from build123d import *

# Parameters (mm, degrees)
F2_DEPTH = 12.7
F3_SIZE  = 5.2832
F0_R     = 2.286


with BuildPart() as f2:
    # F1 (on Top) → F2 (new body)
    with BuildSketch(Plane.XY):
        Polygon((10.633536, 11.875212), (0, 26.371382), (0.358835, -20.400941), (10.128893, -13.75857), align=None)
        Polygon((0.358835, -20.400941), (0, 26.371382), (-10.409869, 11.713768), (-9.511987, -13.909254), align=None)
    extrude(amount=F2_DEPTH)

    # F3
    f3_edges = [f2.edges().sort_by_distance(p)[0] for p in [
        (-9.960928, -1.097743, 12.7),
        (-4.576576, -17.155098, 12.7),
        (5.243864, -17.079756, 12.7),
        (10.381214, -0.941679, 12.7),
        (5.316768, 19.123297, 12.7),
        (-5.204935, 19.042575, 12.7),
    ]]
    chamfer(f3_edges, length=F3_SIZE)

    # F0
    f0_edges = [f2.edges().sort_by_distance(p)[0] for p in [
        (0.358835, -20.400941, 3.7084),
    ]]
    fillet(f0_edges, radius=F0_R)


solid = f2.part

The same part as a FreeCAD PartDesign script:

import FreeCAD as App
import Part
import Sketcher
Q = App.Units.Quantity


def edges_at(feature, points):
    """Names of the edges that pass closest to the given points."""
    edges = feature.Shape.Edges
    near = lambda p: min(range(len(edges)), key=lambda i: edges[i].distToShape(Part.Vertex(*p))[0])
    return sorted({f"Edge{near(p) + 1}" for p in points})

doc = App.newDocument("Part")
body = doc.addObject("PartDesign::Body", "Body")

sketch1 = body.newObject("Sketcher::SketchObject", "Sketch")
sketch1.AttachmentSupport = (doc.getObject("XY_Plane"), [""])
sketch1.MapMode = "FlatFace"
sketch1.addGeometry([
    Part.LineSegment(App.Vector(10.633536, 11.875212, 0), App.Vector(0, 26.371382, 0)),
    Part.LineSegment(App.Vector(0, 26.371382, 0), App.Vector(-10.409869, 11.713768, 0)),
    Part.LineSegment(App.Vector(-10.409869, 11.713768, 0), App.Vector(-9.511987, -13.909254, 0)),
    Part.LineSegment(App.Vector(-9.511987, -13.909254, 0), App.Vector(0.358835, -20.400941, 0)),
    Part.LineSegment(App.Vector(0.358835, -20.400941, 0), App.Vector(10.128893, -13.75857, 0)),
    Part.LineSegment(App.Vector(10.128893, -13.75857, 0), App.Vector(10.633536, 11.875212, 0)),
], False)
sketch1.addConstraint([
    Sketcher.Constraint("Coincident", 0, 2, 1, 1),
    Sketcher.Constraint("Coincident", 1, 2, 2, 1),
    Sketcher.Constraint("Coincident", 2, 2, 3, 1),
    Sketcher.Constraint("Coincident", 3, 2, 4, 1),
    Sketcher.Constraint("Coincident", 4, 2, 5, 1),
    Sketcher.Constraint("Coincident", 5, 2, 0, 1),
    Sketcher.Constraint("PointOnObject", 0, 2, -2),
    Sketcher.Constraint("Equal", 0, 1),
    Sketcher.Constraint("Equal", 3, 4),
    Sketcher.Constraint("Equal", 2, 5),
    Sketcher.Constraint("DistanceX", 3, 2, 5, 2, 10.274701),
    Sketcher.Constraint("Distance", 0, 17.978071),
    Sketcher.Constraint("Distance", 2, 25.638749),
    Sketcher.Constraint("Distance", 3, 11.814192),
    Sketcher.Constraint("DistanceX", 1, 2, -1, 1, 10.409869),
    Sketcher.Constraint("DistanceY", 3, 2, -1, 1, 20.400941),
    Sketcher.Constraint("DistanceY", 4, 2, -1, 1, 13.75857),
    Sketcher.Constraint("DistanceY", 2, 2, 1, 2, 25.623022),
])
pad1 = body.newObject("PartDesign::Pad", "Pad")
pad1.Profile = sketch1
pad1.Length = Q("0.5 in")
doc.recompute()

chamfer = body.newObject("PartDesign::Chamfer", "Chamfer")
chamfer.Base = (pad1, edges_at(pad1, [
    (-9.961, -1.098, 12.7),
    (-4.577, -17.155, 12.7),
    (5.244, -17.08, 12.7),
    (10.381, -0.942, 12.7),
    (5.317, 19.123, 12.7),
    (-5.205, 19.043, 12.7),
]))
chamfer.Size = Q("0.208 in")
doc.recompute()

fillet = body.newObject("PartDesign::Fillet", "Fillet")
fillet.Base = (chamfer, edges_at(chamfer, [(0.359, -20.401, 3.708)]))
fillet.Radius = Q("0.09 in")

doc.recompute()
